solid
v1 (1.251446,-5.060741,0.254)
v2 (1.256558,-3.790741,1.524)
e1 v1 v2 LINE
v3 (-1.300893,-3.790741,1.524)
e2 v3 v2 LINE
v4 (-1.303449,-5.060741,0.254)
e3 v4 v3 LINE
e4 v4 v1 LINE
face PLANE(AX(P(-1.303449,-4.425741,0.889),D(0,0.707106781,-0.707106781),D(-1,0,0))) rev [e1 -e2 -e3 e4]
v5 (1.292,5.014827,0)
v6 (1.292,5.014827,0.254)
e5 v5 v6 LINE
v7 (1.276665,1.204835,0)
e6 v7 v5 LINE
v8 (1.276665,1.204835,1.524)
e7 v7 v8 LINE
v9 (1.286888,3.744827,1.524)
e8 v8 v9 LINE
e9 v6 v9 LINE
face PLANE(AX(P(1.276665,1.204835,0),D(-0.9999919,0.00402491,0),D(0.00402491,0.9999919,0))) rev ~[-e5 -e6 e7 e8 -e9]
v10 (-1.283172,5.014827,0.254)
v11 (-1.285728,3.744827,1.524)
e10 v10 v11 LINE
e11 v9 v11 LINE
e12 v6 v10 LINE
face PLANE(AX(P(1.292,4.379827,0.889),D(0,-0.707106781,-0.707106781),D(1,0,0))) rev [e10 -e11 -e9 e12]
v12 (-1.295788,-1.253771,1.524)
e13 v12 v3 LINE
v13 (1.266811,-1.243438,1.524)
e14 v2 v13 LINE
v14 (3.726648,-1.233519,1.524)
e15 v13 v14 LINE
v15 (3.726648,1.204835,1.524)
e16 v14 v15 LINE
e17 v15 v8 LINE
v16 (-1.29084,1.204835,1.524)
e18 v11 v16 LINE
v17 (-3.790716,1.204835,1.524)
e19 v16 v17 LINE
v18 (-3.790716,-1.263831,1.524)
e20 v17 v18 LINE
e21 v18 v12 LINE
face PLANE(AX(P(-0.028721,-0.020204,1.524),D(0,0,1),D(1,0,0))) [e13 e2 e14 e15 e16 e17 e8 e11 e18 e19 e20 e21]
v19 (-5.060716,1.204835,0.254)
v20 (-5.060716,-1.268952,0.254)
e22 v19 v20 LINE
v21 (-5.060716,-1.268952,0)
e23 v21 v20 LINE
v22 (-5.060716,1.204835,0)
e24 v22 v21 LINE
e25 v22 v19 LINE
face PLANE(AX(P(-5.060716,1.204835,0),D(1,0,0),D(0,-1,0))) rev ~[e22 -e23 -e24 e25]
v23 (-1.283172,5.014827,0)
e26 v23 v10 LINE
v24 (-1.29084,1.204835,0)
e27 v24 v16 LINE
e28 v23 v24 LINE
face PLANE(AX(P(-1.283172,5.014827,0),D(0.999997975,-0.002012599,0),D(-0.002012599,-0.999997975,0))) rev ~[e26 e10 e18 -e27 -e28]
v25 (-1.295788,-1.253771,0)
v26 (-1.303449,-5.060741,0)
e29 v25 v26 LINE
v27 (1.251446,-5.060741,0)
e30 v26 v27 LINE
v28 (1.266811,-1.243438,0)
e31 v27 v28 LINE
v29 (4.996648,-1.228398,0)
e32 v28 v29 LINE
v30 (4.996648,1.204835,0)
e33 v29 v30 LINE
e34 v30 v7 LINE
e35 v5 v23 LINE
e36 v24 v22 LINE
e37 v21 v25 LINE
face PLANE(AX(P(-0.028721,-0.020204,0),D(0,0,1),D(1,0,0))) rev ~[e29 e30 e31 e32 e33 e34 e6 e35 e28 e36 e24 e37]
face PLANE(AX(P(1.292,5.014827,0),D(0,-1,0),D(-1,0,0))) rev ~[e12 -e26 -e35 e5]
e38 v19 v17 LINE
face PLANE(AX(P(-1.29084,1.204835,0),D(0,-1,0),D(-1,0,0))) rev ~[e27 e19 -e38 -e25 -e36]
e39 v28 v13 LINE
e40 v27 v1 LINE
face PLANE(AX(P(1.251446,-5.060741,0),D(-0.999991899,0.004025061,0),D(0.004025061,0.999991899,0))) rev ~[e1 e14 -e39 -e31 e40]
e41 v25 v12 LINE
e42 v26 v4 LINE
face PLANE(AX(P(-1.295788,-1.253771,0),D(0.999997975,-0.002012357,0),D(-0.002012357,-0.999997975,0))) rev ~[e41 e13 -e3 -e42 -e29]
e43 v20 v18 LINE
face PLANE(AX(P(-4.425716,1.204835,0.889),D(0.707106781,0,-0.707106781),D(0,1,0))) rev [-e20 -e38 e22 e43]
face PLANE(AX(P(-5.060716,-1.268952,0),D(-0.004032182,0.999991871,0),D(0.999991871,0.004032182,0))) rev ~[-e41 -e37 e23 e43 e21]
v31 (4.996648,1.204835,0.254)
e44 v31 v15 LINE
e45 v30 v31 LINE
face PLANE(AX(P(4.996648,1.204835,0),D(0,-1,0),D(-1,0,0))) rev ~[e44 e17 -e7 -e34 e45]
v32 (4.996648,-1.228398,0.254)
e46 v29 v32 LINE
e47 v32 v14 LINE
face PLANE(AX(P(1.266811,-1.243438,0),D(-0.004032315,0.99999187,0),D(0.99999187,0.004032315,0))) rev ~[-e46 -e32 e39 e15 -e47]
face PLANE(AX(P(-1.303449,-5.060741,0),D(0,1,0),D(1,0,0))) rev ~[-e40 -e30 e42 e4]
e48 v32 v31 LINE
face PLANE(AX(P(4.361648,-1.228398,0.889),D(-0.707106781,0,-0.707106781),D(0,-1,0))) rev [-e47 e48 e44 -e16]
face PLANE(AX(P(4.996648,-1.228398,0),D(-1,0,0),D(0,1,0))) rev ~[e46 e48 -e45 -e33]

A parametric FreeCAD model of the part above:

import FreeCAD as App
import Part
import Sketcher

V = App.Vector
Q = App.Units.Quantity


def edges_at(feature, points):
    """Names of the edges that pass closest to the given points."""
    edges = feature.Shape.Edges
    near = lambda p: min(range(len(edges)), key=lambda i: edges[i].distToShape(Part.Vertex(*p))[0])
    return sorted({f"Edge{near(p) + 1}" for p in points})


def add_polygon(sketch, points):
    """Adds a closed chain of lines whose ends are joined by coincident constraints."""
    first, n = sketch.GeometryCount, len(points)
    for a, b in zip(points, points[1:] + points[:1]):
        sketch.addGeometry(Part.LineSegment(App.Vector(*a, 0), App.Vector(*b, 0)), False)
    for i in range(n):
        sketch.addConstraint(Sketcher.Constraint("Coincident", first + i, 2, first + (i + 1) % n, 1))

doc = App.newDocument("Part")
params = doc.addObject("Spreadsheet::Sheet", "Params")
for row, (alias, value) in enumerate([
    ("sketch1_length", "0.15 in"),
    ("pad1_length", "0.06 in"),
    ("chamfer_size", "0.05 in"),
], start=1):
    params.set(f"A{row}", alias)
    params.set(f"B{row}", "=" + value)
    params.setAlias(f"B{row}", alias)

body = doc.addObject("PartDesign::Body", "Body")

sketch1 = doc.addObject("Sketcher::SketchObject", "Sketch")
body.addObject(sketch1)
sketch1.AttachmentSupport = (doc.XY_Plane, [""])
sketch1.MapMode = "FlatFace"
add_polygon(sketch1, [(-5.060716, 1.204835), (-5.060716, -1.268952), (-1.295788, -1.253771), (-1.303449, -5.060741), (1.251446, -5.060741), (1.266811, -1.243438), (4.996648, -1.228398), (4.996648, 1.204835), (1.276665, 1.204835), (1.292, 5.014827), (-1.283172, 5.014827), (-1.29084, 1.204835)])
sketch1.addConstraint(Sketcher.Constraint("Vertical", 0))
sketch1.addConstraint(Sketcher.Constraint("Horizontal", 3))
sketch1.addConstraint(Sketcher.Constraint("Vertical", 6))
sketch1.addConstraint(Sketcher.Constraint("Horizontal", 7))
sketch1.addConstraint(Sketcher.Constraint("Horizontal", 9))
sketch1.addConstraint(Sketcher.Constraint("Horizontal", 11))
sketch1.addConstraint(Sketcher.Constraint("Parallel", 1, 5))
sketch1.addConstraint(Sketcher.Constraint("Parallel", 4, 8))
sketch1.addConstraint(Sketcher.Constraint("Parallel", 2, 10))
sketch1.addConstraint(Sketcher.Constraint("Horizontal", 7, 2, 10, 2))
sketch1.addConstraint(Sketcher.Constraint("Distance", 10, Q("0.15 in")))
sketch1.addConstraint(Sketcher.Constraint("DistanceY", 5, 2, -1, 1, Q("1.228398 mm")))
sketch1.addConstraint(Sketcher.Constraint("DistanceX", -1, 1, 8, 2, Q("1.292 mm")))
sketch1.addConstraint(Sketcher.Constraint("DistanceX", 1, 2, 4, 2, Q("2.562599 mm")))
sketch1.addConstraint(Sketcher.Constraint("DistanceY", 1, 2, 8, 2, Q("6.268598 mm")))
sketch1.addConstraint(Sketcher.Constraint("Distance", 1, Q("3.764959 mm")))
sketch1.addConstraint(Sketcher.Constraint("DistanceX", 3, 1, 3, 2, Q("2.554895 mm")))
sketch1.addConstraint(Sketcher.Constraint("DistanceX", 7, 2, 7, 1, Q("3.719983 mm")))
sketch1.addConstraint(Sketcher.Constraint("DistanceX", 9, 2, 9, 1, Q("2.575172 mm")))
sketch1.addConstraint(Sketcher.Constraint("DistanceX", 11, 2, 11, 1, Q("3.769876 mm")))
sketch1.addConstraint(Sketcher.Constraint("DistanceY", 0, 2, 0, 1, Q("2.473787 mm")))
sketch1.addConstraint(Sketcher.Constraint("DistanceY", 6, 1, 6, 2, Q("2.433233 mm")))
sketch1.addConstraint(Sketcher.Constraint("DistanceX", 2, 2, -1, 1, Q("1.303449 mm")))
sketch1.addConstraint(Sketcher.Constraint("DistanceY", 2, 2, -1, 1, Q("5.060741 mm")))
sketch1.setExpression("Constraints[22]", "Params.sketch1_length")
pad1 = doc.addObject("PartDesign::Pad", "Pad")
body.addObject(pad1)
pad1.Profile = sketch1
pad1.setExpression("Length", "Params.pad1_length")
doc.recompute()

chamfer = doc.addObject("PartDesign::Chamfer", "Chamfer")
body.addObject(chamfer)
chamfer.Base = (pad1, edges_at(pad1, [
    (-0.026, -5.061, 1.524),
    (-5.061, -0.032, 1.524),
    (0.004, 5.015, 1.524),
    (4.997, -0.012, 1.524),
]))
chamfer.setExpression("Size", "Params.chamfer_size")

doc.recompute()
